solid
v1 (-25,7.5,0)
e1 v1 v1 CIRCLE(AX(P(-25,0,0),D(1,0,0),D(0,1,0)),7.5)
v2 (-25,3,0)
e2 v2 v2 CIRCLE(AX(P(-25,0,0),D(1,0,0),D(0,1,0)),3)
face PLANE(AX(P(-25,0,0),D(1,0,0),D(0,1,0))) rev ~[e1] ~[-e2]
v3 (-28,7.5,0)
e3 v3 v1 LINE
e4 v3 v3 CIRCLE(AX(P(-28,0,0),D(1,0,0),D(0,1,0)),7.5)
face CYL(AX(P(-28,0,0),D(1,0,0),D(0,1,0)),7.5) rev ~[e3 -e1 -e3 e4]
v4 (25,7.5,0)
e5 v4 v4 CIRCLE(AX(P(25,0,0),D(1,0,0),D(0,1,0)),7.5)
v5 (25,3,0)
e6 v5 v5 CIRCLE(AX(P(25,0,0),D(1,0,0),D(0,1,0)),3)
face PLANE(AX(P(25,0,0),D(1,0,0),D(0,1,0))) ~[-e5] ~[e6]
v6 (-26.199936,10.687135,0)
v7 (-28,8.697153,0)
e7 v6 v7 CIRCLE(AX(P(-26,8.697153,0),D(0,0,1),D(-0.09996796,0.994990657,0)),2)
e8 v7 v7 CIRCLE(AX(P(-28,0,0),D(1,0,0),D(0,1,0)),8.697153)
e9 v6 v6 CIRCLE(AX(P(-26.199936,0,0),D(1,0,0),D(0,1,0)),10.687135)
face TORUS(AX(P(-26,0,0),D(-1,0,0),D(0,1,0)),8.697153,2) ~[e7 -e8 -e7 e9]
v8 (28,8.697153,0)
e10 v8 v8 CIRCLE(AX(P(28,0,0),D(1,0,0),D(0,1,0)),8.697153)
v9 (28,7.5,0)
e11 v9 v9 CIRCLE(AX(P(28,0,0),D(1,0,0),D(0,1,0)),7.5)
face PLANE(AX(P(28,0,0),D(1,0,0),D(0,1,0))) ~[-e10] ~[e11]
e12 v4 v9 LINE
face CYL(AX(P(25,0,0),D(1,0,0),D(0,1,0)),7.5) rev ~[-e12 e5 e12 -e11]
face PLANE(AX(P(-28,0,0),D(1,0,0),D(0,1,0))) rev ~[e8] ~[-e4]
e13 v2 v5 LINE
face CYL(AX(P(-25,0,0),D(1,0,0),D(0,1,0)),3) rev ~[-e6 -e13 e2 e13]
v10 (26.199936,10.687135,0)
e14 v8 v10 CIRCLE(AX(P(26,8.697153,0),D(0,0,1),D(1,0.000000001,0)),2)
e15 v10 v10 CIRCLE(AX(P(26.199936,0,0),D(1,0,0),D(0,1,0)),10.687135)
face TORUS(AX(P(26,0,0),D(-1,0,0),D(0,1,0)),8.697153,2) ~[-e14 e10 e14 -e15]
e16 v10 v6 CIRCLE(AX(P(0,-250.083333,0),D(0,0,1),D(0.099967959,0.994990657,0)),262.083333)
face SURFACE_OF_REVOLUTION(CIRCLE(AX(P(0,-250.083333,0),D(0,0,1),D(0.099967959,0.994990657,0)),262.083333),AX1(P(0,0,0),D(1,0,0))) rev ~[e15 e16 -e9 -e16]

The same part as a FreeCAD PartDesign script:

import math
import FreeCAD as App
import Part
import Sketcher

doc = App.newDocument("Part")
body = doc.addObject("PartDesign::Body", "Body")

# Sketch on XY plane
sketch1 = body.newObject("Sketcher::SketchObject", "Sketch")
sketch1.AttachmentSupport = (doc.getObject("XY_Plane"), [""])
sketch1.MapMode = "FlatFace"
sketch1.addGeometry([
    Part.LineSegment(App.Vector(-25, 3, 0), App.Vector(25, 3, 0)),  # 0
    Part.LineSegment(App.Vector(25, 3, 0), App.Vector(25, 7.5, 0)),  # 1
    Part.LineSegment(App.Vector(25, 7.5, 0), App.Vector(28, 7.5, 0)),  # 2
    Part.LineSegment(App.Vector(28, 7.5, 0), App.Vector(28, 8.7, 0)),  # 3
    Part.ArcOfCircle(Part.Circle(App.Vector(26, 8.7, 0), App.Vector(0, 0, 1), 2), math.radians(0), math.radians(84)),  # 4
    Part.ArcOfCircle(Part.Circle(App.Vector(0, -250.1, 0), App.Vector(0, 0, 1), 262.1), math.radians(84.26), math.radians(95.74)),  # 5
    Part.ArcOfCircle(Part.Circle(App.Vector(-26, 8.7, 0), App.Vector(0, 0, 1), 2), math.radians(96), math.radians(180)),  # 6
    Part.LineSegment(App.Vector(-28, 8.7, 0), App.Vector(-28, 7.5, 0)),  # 7
    Part.LineSegment(App.Vector(-28, 7.5, 0), App.Vector(-25, 7.5, 0)),  # 8
    Part.LineSegment(App.Vector(-25, 7.5, 0), App.Vector(-25, 3, 0)),  # 9
], False)
sketch1.addConstraint([
    Sketcher.Constraint("Coincident", 0, 2, 1, 1),
    Sketcher.Constraint("Coincident", 1, 2, 2, 1),
    Sketcher.Constraint("Coincident", 2, 2, 3, 1),
    Sketcher.Constraint("Tangent", 3, 2, 4, 1),
    Sketcher.Constraint("Tangent", 4, 2, 5, 1),
    Sketcher.Constraint("Tangent", 5, 2, 6, 1),
    Sketcher.Constraint("Tangent", 6, 2, 7, 1),
    Sketcher.Constraint("Coincident", 7, 2, 8, 1),
    Sketcher.Constraint("Coincident", 8, 2, 9, 1),
    Sketcher.Constraint("Coincident", 9, 2, 0, 1),
    Sketcher.Constraint("Horizontal", 0),
    Sketcher.Constraint("Vertical", 1),
    Sketcher.Constraint("Horizontal", 2),
    Sketcher.Constraint("Vertical", 3),
    Sketcher.Constraint("Vertical", 7),
    Sketcher.Constraint("Horizontal", 8),
    Sketcher.Constraint("Vertical", 9),
    Sketcher.Constraint("Equal", 4, 6),
    Sketcher.Constraint("Symmetric", 4, 3, 6, 3, -2),
    Sketcher.Constraint("Symmetric", 1, 2, 8, 2, -2),
    Sketcher.Constraint("Radius", 4, 2.0),
    Sketcher.Constraint("DistanceX", 0, 1, 0, 2, 50.0),
    Sketcher.Constraint("DistanceX", 2, 1, 2, 2, 3.0),
    Sketcher.Constraint("DistanceY", 1, 1, 1, 2, 4.5),
    Sketcher.Constraint("DistanceY", -1, 1, 0, 2, 3.0),
    Sketcher.Constraint("Radius", 5, 262.083333),
    Sketcher.Constraint("DistanceY", 3, 1, 3, 2, 1.197153),
])
revolution = body.newObject("PartDesign::Revolution", "Revolution")
revolution.Profile = sketch1
revolution.ReferenceAxis = (sketch1, ["H_Axis"])
revolution.Angle = 360

doc.recompute()
